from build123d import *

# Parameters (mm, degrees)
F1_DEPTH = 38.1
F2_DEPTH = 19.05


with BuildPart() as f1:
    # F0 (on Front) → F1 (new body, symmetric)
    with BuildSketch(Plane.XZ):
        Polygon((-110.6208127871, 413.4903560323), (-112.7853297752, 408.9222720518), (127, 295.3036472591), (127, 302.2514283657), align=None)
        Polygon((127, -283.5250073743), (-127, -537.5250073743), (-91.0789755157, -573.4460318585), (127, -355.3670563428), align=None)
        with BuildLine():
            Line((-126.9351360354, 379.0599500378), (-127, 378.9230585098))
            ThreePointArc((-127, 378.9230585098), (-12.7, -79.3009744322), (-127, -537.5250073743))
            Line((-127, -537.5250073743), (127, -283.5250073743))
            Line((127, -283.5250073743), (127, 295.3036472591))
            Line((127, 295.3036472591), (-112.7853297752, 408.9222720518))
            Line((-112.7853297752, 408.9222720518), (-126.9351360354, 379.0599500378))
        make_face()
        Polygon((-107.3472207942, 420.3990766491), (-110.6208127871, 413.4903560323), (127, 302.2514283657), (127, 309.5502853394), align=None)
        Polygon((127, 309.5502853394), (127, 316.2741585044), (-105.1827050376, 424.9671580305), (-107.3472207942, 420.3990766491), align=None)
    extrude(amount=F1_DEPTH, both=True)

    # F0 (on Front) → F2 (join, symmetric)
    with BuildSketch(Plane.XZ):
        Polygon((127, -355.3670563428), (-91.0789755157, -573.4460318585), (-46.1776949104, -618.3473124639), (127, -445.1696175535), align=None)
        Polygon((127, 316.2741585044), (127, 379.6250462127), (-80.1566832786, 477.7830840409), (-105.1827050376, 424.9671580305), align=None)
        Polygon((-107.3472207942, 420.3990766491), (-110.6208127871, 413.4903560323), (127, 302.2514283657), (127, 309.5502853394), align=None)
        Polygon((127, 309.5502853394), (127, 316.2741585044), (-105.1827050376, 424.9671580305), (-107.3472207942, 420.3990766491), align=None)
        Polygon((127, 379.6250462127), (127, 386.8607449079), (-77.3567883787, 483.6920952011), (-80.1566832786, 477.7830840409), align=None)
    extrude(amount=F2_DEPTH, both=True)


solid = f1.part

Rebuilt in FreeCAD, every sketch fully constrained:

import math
import FreeCAD as App
import Part
import Sketcher
Q = App.Units.Quantity


def add_polygon(sketch, points):
    """Adds a closed chain of lines whose ends are joined by coincident constraints."""
    first, n = sketch.GeometryCount, len(points)
    for a, b in zip(points, points[1:] + points[:1]):
        sketch.addGeometry(Part.LineSegment(App.Vector(*a, 0), App.Vector(*b, 0)), False)
    for i in range(n):
        sketch.addConstraint(Sketcher.Constraint("Coincident", first + i, 2, first + (i + 1) % n, 1))

doc = App.newDocument("Part")
body = doc.addObject("PartDesign::Body", "Body")

sketch1 = doc.addObject("Sketcher::SketchObject", "Sketch")
body.addObject(sketch1)
sketch1.AttachmentSupport = (doc.XZ_Plane, [""])
sketch1.MapMode = "FlatFace"
sketch1.addGeometry([
    Part.LineSegment(App.Vector(-110.62, 413.49, 0), App.Vector(-112.79, 408.92, 0)),
    Part.LineSegment(App.Vector(-112.79, 408.92, 0), App.Vector(-126.94, 379.06, 0)),
    Part.LineSegment(App.Vector(-126.94, 379.06, 0), App.Vector(-127, 378.92, 0)),
    Part.ArcOfCircle(Part.Circle(App.Vector(-988.35, -79.3, 0), App.Vector(0, 0, 1), 975.65), math.radians(-28), math.radians(28)),
    Part.LineSegment(App.Vector(-127, -537.53, 0), App.Vector(-91.08, -573.45, 0)),
    Part.LineSegment(App.Vector(-91.08, -573.45, 0), App.Vector(127, -355.37, 0)),
    Part.LineSegment(App.Vector(127, -355.37, 0), App.Vector(127, 316.27, 0)),
    Part.LineSegment(App.Vector(127, 316.27, 0), App.Vector(-105.18, 424.97, 0)),
    Part.LineSegment(App.Vector(-105.18, 424.97, 0), App.Vector(-107.35, 420.4, 0)),
    Part.LineSegment(App.Vector(-107.35, 420.4, 0), App.Vector(-110.62, 413.49, 0)),
], False)
sketch1.addConstraint([
    Sketcher.Constraint("Coincident", 0, 2, 1, 1),
    Sketcher.Constraint("Coincident", 1, 2, 2, 1),
    Sketcher.Constraint("Coincident", 2, 2, 3, 2),
    Sketcher.Constraint("Coincident", 3, 1, 4, 1),
    Sketcher.Constraint("Coincident", 4, 2, 5, 1),
    Sketcher.Constraint("Coincident", 5, 2, 6, 1),
    Sketcher.Constraint("Coincident", 6, 2, 7, 1),
    Sketcher.Constraint("Coincident", 7, 2, 8, 1),
    Sketcher.Constraint("Coincident", 8, 2, 9, 1),
    Sketcher.Constraint("Coincident", 9, 2, 0, 1),
    Sketcher.Constraint("Vertical", 6),
    Sketcher.Constraint("Parallel", 0, 1),
    Sketcher.Constraint("Parallel", 1, 2),
    Sketcher.Constraint("Perpendicular", 4, 5),
    Sketcher.Constraint("Parallel", 2, 8),
    Sketcher.Constraint("Parallel", 8, 9),
    Sketcher.Constraint("Distance", 4, Q("2 in")),
    Sketcher.Constraint("DistanceX", 2, 2, -1, 1, Q("5 in")),
    Sketcher.Constraint("DistanceX", -1, 1, 5, 2, Q("5 in")),
    Sketcher.Constraint("Angle", 4, Q("-45 deg")),
    Sketcher.Constraint("Radius", 3, 975.650719),
    Sketcher.Constraint("DistanceY", 6, 2, 2, 2, 62.6489),
    Sketcher.Constraint("DistanceY", 2, 2, 7, 2, 46.0441),
    Sketcher.Constraint("DistanceY", 9, 2, 7, 2, 11.476802),
    Sketcher.Constraint("Distance", 0, 5.054951),
    Sketcher.Constraint("Distance", 1, 33.045049),
    Sketcher.Constraint("Distance", 2, 0.151481),
    Sketcher.Constraint("DistanceY", 6, 1, 6, 2, 671.641215),
    Sketcher.Constraint("DistanceX", 3, 3, -1, 1, 988.350719),
    Sketcher.Constraint("DistanceY", -1, 1, 1, 2, 379.05995),
    Sketcher.Constraint("DistanceX", 8, 2, -1, 1, 107.347221),
])
pad1 = doc.addObject("PartDesign::Pad", "Pad")
body.addObject(pad1)
pad1.Profile = sketch1
pad1.Length = Q("3 in")
pad1.Midplane = True

sketch2 = doc.addObject("Sketcher::SketchObject", "Sketch001")
body.addObject(sketch2)
sketch2.AttachmentSupport = (doc.XZ_Plane, [""])
sketch2.MapMode = "FlatFace"
add_polygon(sketch2, [(127, -355), (-91, -573), (-46, -618), (127, -445)])
add_polygon(sketch2, [(-80, 478), (-105, 425), (-107, 420), (-111, 413), (127, 302), (127, 387), (-77, 484)])
sketch2.addConstraint([
    Sketcher.Constraint("Vertical", 3),
    Sketcher.Constraint("Vertical", 8),
    Sketcher.Constraint("Perpendicular", 0, 1),
    Sketcher.Constraint("Perpendicular", 1, 2),
    Sketcher.Constraint("Parallel", 4, 5),
    Sketcher.Constraint("Parallel", 5, 6),
    Sketcher.Constraint("Perpendicular", 6, 9),
    Sketcher.Constraint("Perpendicular", 9, 10),
    Sketcher.Constraint("Vertical", 3, 2, 7, 2),
    Sketcher.Constraint("DistanceX", -1, 1, 2, 2, Q("5 in")),
    Sketcher.Constraint("Angle", 0, Q("-135 deg")),
    Sketcher.Constraint("Distance", 1, Q("2.5 in")),
    Sketcher.Constraint("DistanceY", 6, 2, 4, 2, 11.476802),
    Sketcher.Constraint("DistanceY", 3, 2, 8, 2, 742.227801),
    Sketcher.Constraint("Distance", 4, 58.445049),
    Sketcher.Constraint("Distance", 7, 262.369491),
    Sketcher.Constraint("DistanceY", 8, 1, 8, 2, 84.609317),
    Sketcher.Constraint("DistanceY", 0, 2, -1, 1, 573.446032),
    Sketcher.Constraint("DistanceY", -1, 1, 4, 2, 424.967158),
    Sketcher.Constraint("DistanceX", 5, 2, -1, 1, 107.347221),
    Sketcher.Constraint("DistanceY", -1, 1, 7, 2, 302.251428),
    Sketcher.Constraint("DistanceX", 9, 2, -1, 1, 77.356788),
])
pad2 = doc.addObject("PartDesign::Pad", "Pad001")
body.addObject(pad2)
pad2.Profile = sketch2
pad2.Length = Q("1.5 in")
pad2.Midplane = True

doc.recompute()
